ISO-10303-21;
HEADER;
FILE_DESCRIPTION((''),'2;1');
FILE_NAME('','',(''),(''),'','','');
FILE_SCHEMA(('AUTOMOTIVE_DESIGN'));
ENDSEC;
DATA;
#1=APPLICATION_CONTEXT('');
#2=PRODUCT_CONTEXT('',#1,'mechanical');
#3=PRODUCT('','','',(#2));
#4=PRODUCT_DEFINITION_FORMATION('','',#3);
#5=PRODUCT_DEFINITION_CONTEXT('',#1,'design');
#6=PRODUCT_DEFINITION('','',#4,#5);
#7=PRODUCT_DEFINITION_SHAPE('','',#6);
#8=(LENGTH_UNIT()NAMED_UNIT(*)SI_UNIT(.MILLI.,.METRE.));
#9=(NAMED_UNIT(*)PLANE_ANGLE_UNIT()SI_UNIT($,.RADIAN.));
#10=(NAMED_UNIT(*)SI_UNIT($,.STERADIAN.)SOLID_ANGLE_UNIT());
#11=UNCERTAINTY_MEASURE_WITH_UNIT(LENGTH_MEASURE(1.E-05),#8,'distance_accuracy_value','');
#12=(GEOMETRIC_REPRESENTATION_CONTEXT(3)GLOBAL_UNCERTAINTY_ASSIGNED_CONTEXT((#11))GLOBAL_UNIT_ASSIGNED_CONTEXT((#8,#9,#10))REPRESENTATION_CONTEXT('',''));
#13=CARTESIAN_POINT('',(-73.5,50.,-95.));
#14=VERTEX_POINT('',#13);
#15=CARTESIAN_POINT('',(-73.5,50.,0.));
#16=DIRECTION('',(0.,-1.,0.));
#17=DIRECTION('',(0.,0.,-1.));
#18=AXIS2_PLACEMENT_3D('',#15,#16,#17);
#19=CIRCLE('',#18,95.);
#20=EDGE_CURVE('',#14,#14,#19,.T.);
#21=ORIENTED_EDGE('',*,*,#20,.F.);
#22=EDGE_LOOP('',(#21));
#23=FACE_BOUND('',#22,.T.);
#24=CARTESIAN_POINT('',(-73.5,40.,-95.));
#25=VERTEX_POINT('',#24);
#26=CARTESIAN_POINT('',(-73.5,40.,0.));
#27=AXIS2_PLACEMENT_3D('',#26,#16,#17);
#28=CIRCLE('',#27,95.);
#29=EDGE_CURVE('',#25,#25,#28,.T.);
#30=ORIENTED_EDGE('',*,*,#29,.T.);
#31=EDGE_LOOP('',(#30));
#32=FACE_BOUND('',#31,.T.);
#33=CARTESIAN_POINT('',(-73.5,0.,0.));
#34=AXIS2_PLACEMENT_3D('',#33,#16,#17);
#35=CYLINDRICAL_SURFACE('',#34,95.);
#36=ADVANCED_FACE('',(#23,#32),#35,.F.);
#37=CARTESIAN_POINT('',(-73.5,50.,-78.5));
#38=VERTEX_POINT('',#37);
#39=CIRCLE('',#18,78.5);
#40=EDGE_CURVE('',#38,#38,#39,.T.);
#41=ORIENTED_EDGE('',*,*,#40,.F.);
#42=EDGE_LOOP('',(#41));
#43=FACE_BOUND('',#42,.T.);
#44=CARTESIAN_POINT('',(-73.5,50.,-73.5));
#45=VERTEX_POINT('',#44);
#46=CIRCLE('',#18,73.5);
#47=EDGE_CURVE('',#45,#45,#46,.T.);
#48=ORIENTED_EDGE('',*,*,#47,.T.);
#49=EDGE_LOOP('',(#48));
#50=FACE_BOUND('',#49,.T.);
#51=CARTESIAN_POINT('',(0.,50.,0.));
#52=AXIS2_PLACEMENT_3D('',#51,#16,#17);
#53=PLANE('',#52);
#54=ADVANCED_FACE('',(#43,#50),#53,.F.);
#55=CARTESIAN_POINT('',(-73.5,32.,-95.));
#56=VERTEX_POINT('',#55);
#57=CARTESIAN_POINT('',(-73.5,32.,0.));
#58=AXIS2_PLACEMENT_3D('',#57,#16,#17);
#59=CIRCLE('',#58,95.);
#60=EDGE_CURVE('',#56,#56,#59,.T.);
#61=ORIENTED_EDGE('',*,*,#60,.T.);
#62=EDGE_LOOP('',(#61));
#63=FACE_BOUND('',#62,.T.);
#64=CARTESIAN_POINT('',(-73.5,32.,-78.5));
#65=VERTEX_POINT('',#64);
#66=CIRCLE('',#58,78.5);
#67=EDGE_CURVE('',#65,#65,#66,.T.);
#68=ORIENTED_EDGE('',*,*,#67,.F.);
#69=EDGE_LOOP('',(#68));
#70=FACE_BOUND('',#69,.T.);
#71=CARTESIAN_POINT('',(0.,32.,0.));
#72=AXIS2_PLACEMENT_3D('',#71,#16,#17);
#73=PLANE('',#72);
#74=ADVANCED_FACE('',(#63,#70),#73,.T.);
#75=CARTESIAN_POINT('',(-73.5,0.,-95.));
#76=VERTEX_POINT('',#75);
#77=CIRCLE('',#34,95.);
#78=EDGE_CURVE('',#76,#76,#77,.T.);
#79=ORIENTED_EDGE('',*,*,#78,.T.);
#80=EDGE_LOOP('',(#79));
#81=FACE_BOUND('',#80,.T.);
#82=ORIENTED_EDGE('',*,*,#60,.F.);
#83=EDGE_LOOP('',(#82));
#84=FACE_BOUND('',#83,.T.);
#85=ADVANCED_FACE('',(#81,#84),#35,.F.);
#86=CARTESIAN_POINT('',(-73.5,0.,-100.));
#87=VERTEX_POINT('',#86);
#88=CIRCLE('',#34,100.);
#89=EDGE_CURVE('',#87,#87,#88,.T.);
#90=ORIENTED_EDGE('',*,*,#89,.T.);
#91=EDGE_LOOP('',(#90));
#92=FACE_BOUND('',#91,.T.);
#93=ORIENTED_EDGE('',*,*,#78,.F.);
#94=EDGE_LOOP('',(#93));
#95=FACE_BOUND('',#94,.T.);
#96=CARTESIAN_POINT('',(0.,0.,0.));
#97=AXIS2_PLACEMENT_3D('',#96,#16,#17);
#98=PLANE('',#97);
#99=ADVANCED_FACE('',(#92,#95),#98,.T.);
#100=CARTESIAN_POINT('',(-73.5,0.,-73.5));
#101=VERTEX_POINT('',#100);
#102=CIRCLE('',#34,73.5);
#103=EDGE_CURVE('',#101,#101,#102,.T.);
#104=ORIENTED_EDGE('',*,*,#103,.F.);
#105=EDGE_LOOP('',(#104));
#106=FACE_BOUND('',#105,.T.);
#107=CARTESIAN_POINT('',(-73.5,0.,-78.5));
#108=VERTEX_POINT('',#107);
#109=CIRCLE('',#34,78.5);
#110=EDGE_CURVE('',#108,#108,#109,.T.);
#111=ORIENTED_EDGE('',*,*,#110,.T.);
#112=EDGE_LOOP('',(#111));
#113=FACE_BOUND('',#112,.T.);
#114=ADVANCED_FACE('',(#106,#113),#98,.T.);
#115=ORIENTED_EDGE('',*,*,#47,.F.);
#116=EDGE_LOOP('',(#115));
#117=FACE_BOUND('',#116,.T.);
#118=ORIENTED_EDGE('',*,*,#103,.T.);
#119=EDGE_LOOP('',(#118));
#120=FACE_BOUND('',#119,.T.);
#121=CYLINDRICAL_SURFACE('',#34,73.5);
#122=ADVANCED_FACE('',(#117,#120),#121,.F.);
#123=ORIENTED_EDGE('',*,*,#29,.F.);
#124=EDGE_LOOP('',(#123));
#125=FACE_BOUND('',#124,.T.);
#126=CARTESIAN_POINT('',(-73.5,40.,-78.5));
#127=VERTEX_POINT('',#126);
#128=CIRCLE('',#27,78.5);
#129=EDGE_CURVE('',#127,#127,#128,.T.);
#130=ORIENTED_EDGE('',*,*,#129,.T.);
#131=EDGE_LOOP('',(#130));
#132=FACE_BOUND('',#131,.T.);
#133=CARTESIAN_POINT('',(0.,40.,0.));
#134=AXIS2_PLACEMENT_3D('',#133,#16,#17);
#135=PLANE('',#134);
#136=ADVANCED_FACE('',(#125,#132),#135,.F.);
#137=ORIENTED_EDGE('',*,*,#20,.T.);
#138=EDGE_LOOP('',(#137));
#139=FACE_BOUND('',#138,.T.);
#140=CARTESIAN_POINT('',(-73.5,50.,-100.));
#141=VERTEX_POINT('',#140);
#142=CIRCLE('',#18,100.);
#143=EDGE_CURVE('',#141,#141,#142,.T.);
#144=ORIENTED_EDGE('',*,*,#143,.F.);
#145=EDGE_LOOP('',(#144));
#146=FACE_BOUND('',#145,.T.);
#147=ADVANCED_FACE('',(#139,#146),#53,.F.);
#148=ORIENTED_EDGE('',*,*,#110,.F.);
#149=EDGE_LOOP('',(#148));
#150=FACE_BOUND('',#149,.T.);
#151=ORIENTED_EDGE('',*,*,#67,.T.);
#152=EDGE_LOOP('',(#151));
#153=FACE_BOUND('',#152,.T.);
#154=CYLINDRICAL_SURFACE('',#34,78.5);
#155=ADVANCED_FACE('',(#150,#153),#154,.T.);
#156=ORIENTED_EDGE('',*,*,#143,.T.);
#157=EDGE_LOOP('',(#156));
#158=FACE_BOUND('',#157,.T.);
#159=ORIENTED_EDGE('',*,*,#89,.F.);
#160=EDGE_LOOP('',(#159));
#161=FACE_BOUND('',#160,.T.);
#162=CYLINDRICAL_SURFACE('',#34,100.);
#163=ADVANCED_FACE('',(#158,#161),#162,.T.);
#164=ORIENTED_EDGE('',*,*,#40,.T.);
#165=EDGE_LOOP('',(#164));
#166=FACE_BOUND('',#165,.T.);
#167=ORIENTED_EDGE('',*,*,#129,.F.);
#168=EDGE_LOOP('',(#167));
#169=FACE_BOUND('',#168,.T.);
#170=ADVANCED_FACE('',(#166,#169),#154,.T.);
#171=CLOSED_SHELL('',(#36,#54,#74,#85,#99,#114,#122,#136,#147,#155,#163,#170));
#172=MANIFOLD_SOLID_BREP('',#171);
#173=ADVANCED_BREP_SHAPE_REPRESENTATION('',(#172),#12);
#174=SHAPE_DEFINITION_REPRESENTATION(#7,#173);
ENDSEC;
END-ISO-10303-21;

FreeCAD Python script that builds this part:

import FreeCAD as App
import Part
import Sketcher
from FreeCAD import Vector
Q = App.Units.Quantity

doc = App.newDocument("Part")
body = doc.addObject("PartDesign::Body", "Body")

# Sketch on XY plane
sketch1 = doc.addObject("Sketcher::SketchObject", "Sketch")
body.addObject(sketch1)
sketch1.AttachmentSupport = (doc.XY_Plane, [""])
sketch1.MapMode = "FlatFace"
sketch1.addGeometry(Part.LineSegment(Vector(26.5, 50, 0), Vector(21.5, 50, 0)), False)
sketch1.addGeometry(Part.LineSegment(Vector(21.5, 50, 0), Vector(21.5, 40, 0)), False)
sketch1.addGeometry(Part.LineSegment(Vector(21.5, 40, 0), Vector(5, 40, 0)), False)
sketch1.addGeometry(Part.LineSegment(Vector(5, 40, 0), Vector(5, 50, 0)), False)
sketch1.addGeometry(Part.LineSegment(Vector(5, 50, 0), Vector(0, 50, 0)), False)
sketch1.addGeometry(Part.LineSegment(Vector(0, 50, 0), Vector(0, 0, 0)), False)
sketch1.addGeometry(Part.LineSegment(Vector(0, 0, 0), Vector(5, 0, 0)), False)
sketch1.addGeometry(Part.LineSegment(Vector(5, 0, 0), Vector(5, 32, 0)), False)
sketch1.addGeometry(Part.LineSegment(Vector(5, 32, 0), Vector(21.5, 32, 0)), False)
sketch1.addGeometry(Part.LineSegment(Vector(21.5, 32, 0), Vector(21.5, 0, 0)), False)
sketch1.addGeometry(Part.LineSegment(Vector(21.5, 0, 0), Vector(26.5, 0, 0)), False)
sketch1.addGeometry(Part.LineSegment(Vector(26.5, 0, 0), Vector(26.5, 50, 0)), False)
sketch1.addGeometry(Part.LineSegment(Vector(-73.5, 0, 0), Vector(-73.5, 50, 0)), True)  # axis
sketch1.addConstraint(Sketcher.Constraint("Coincident", 0, 2, 1, 1))
sketch1.addConstraint(Sketcher.Constraint("Coincident", 1, 2, 2, 1))
sketch1.addConstraint(Sketcher.Constraint("Coincident", 2, 2, 3, 1))
sketch1.addConstraint(Sketcher.Constraint("Coincident", 3, 2, 4, 1))
sketch1.addConstraint(Sketcher.Constraint("Coincident", 4, 2, 5, 1))
sketch1.addConstraint(Sketcher.Constraint("Coincident", 5, 2, 6, 1))
sketch1.addConstraint(Sketcher.Constraint("Coincident", 6, 2, 7, 1))
sketch1.addConstraint(Sketcher.Constraint("Coincident", 7, 2, 8, 1))
sketch1.addConstraint(Sketcher.Constraint("Coincident", 8, 2, 9, 1))
sketch1.addConstraint(Sketcher.Constraint("Coincident", 9, 2, 10, 1))
sketch1.addConstraint(Sketcher.Constraint("Coincident", 10, 2, 11, 1))
sketch1.addConstraint(Sketcher.Constraint("Coincident", 11, 2, 0, 1))
sketch1.addConstraint(Sketcher.Constraint("Horizontal", 0))
sketch1.addConstraint(Sketcher.Constraint("Vertical", 1))
sketch1.addConstraint(Sketcher.Constraint("Horizontal", 2))
sketch1.addConstraint(Sketcher.Constraint("Vertical", 3))
sketch1.addConstraint(Sketcher.Constraint("Horizontal", 4))
sketch1.addConstraint(Sketcher.Constraint("Vertical", 5))
sketch1.addConstraint(Sketcher.Constraint("Horizontal", 6))
sketch1.addConstraint(Sketcher.Constraint("Vertical", 7))
sketch1.addConstraint(Sketcher.Constraint("Horizontal", 8))
sketch1.addConstraint(Sketcher.Constraint("Vertical", 9))
sketch1.addConstraint(Sketcher.Constraint("Horizontal", 10))
sketch1.addConstraint(Sketcher.Constraint("Vertical", 11))
sketch1.addConstraint(Sketcher.Constraint("Vertical", 12))
sketch1.addConstraint(Sketcher.Constraint("Coincident", 5, 2, -1, 1))
sketch1.addConstraint(Sketcher.Constraint("PointOnObject", 9, 2, -1))
sketch1.addConstraint(Sketcher.Constraint("PointOnObject", 12, 1, -1))
sketch1.addConstraint(Sketcher.Constraint("Horizontal", 0, 2, 3, 2))
sketch1.addConstraint(Sketcher.Constraint("Horizontal", 11, 2, 12, 2))
sketch1.addConstraint(Sketcher.Constraint("Vertical", 3, 2, 6, 2))
sketch1.addConstraint(Sketcher.Constraint("Vertical", 1, 2, 8, 2))
sketch1.addConstraint(Sketcher.Constraint("Equal", 0, 4))
sketch1.addConstraint(Sketcher.Constraint("DistanceX", 0, 2, 0, 1, Q("5 mm")))
sketch1.addConstraint(Sketcher.Constraint("DistanceY", 1, 2, 1, 1, Q("10 mm")))
sketch1.addConstraint(Sketcher.Constraint("DistanceY", 5, 2, 5, 1, Q("50 mm")))
sketch1.addConstraint(Sketcher.Constraint("DistanceY", 7, 1, 7, 2, Q("32 mm")))
sketch1.addConstraint(Sketcher.Constraint("DistanceX", 2, 2, 2, 1, Q("16.5 mm")))
sketch1.addConstraint(Sketcher.Constraint("DistanceX", 12, 1, -1, 1, Q("73.5 mm")))
revolution = doc.addObject("PartDesign::Revolution", "Revolution")
body.addObject(revolution)
revolution.Profile = sketch1
revolution.ReferenceAxis = (sketch1, ["Axis0"])
revolution.Angle = 360

doc.recompute()
